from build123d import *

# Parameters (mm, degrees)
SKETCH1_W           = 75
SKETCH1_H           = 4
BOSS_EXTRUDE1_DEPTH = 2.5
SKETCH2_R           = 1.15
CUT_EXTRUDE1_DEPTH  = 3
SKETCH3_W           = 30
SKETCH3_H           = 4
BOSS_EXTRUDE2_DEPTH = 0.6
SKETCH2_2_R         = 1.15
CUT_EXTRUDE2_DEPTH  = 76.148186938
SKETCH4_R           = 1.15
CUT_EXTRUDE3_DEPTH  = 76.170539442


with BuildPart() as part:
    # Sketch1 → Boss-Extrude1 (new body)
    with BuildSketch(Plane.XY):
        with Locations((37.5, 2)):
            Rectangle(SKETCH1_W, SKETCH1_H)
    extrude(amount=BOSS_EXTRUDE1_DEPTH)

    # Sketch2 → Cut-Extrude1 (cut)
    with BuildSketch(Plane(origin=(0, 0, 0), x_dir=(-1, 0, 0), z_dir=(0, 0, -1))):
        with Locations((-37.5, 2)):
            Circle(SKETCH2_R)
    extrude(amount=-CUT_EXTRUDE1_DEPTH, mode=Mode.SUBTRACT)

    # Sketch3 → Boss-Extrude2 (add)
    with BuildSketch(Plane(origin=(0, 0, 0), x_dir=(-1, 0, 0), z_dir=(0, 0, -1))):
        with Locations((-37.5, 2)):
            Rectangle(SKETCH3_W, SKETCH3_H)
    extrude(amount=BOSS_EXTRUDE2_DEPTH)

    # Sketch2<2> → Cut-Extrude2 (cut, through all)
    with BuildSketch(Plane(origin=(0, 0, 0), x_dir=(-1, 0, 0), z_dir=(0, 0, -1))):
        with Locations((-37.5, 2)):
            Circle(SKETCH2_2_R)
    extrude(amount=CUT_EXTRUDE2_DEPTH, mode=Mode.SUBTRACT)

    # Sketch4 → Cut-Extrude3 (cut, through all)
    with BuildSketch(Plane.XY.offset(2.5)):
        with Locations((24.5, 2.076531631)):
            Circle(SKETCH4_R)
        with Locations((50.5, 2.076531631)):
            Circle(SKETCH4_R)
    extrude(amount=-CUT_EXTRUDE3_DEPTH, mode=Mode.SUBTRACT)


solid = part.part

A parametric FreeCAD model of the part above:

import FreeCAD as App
import Part
import Sketcher

V = App.Vector


def add_polygon(sketch, points):
    """Adds a closed chain of lines whose ends are joined by coincident constraints."""
    first, n = sketch.GeometryCount, len(points)
    for a, b in zip(points, points[1:] + points[:1]):
        sketch.addGeometry(Part.LineSegment(App.Vector(*a, 0), App.Vector(*b, 0)), False)
    for i in range(n):
        sketch.addConstraint(Sketcher.Constraint("Coincident", first + i, 2, first + (i + 1) % n, 1))

doc = App.newDocument("Part")
body = doc.addObject("PartDesign::Body", "Body")

# Sketch on XY plane
sketch1 = body.newObject("Sketcher::SketchObject", "Sketch")
sketch1.AttachmentSupport = (doc.getObject("XY_Plane"), [""])
sketch1.MapMode = "FlatFace"
add_polygon(sketch1, [(0, 4), (0, 0), (75, 0), (75, 4)])  # lines 0-3
sketch1.addConstraint(Sketcher.Constraint("Vertical", 0))
sketch1.addConstraint(Sketcher.Constraint("Horizontal", 1))
sketch1.addConstraint(Sketcher.Constraint("Vertical", 2))
sketch1.addConstraint(Sketcher.Constraint("Horizontal", 3))
sketch1.addConstraint(Sketcher.Constraint("Coincident", 0, 2, -1, 1))
sketch1.addConstraint(Sketcher.Constraint("DistanceX", 1, 1, 1, 2, 75.0))
sketch1.addConstraint(Sketcher.Constraint("DistanceY", 0, 2, 0, 1, 4.0))
pad1 = body.newObject("PartDesign::Pad", "Pad")
pad1.Profile = sketch1
pad1.Length = 2.5

# Sketch on XY plane
sketch2 = body.newObject("Sketcher::SketchObject", "Sketch001")
sketch2.AttachmentSupport = (doc.getObject("XY_Plane"), [""])
sketch2.MapMode = "FlatFace"
sketch2.addGeometry(Part.Circle(V(37.5, 2, 0), V(0, 0, 1), 1.1), False)
sketch2.addConstraint(Sketcher.Constraint("Diameter", 0, 2.3))
sketch2.addConstraint(Sketcher.Constraint("DistanceY", -1, 1, 0, 3, 2.0))
sketch2.addConstraint(Sketcher.Constraint("DistanceX", -1, 1, 0, 3, 37.5))
pocket1 = body.newObject("PartDesign::Pocket", "Pocket")
pocket1.Profile = sketch2
pocket1.Length = 3
pocket1.Reversed = True

# Sketch on XY plane
sketch3 = body.newObject("Sketcher::SketchObject", "Sketch002")
sketch3.AttachmentSupport = (doc.getObject("XY_Plane"), [""])
sketch3.MapMode = "FlatFace"
add_polygon(sketch3, [(52.5, 4), (52.5, 0), (22.5, 0), (22.5, 4)])  # lines 0-3
sketch3.addConstraint(Sketcher.Constraint("Vertical", 0))
sketch3.addConstraint(Sketcher.Constraint("Horizontal", 1))
sketch3.addConstraint(Sketcher.Constraint("Vertical", 2))
sketch3.addConstraint(Sketcher.Constraint("Horizontal", 3))
sketch3.addConstraint(Sketcher.Constraint("PointOnObject", 0, 2, -1))
sketch3.addConstraint(Sketcher.Constraint("DistanceX", 1, 2, 1, 1, 30.0))
sketch3.addConstraint(Sketcher.Constraint("DistanceY", 0, 2, 0, 1, 4.0))
sketch3.addConstraint(Sketcher.Constraint("DistanceX", -1, 1, 0, 2, 52.5))
pad2 = body.newObject("PartDesign::Pad", "Pad001")
pad2.Profile = sketch3
pad2.Length = 0.6
pad2.Reversed = True

# Sketch on XY plane
sketch4 = body.newObject("Sketcher::SketchObject", "Sketch003")
sketch4.AttachmentSupport = (doc.getObject("XY_Plane"), [""])
sketch4.MapMode = "FlatFace"
sketch4.addGeometry(Part.Circle(V(37.5, 2, 0), V(0, 0, 1), 1.1), False)
sketch4.addConstraint(Sketcher.Constraint("Diameter", 0, 2.3))
sketch4.addConstraint(Sketcher.Constraint("DistanceY", -1, 1, 0, 3, 2.0))
sketch4.addConstraint(Sketcher.Constraint("DistanceX", -1, 1, 0, 3, 37.5))
pocket2 = body.newObject("PartDesign::Pocket", "Pocket001")
pocket2.Profile = sketch4
pocket2.Type = "ThroughAll"

# Sketch on XY plane
sketch5 = body.newObject("Sketcher::SketchObject", "Sketch004")
sketch5.AttachmentSupport = (doc.getObject("XY_Plane"), [""])
sketch5.MapMode = "FlatFace"
sketch5.AttachmentOffset = App.Placement(V(0, 0, 2.5), App.Rotation())
sketch5.addGeometry(Part.Circle(V(24.5, 2.1, 0), V(0, 0, 1), 1.1), False)
sketch5.addGeometry(Part.Circle(V(50.5, 2.1, 0), V(0, 0, 1), 1.1), False)
sketch5.addConstraint(Sketcher.Constraint("Equal", 0, 1))
sketch5.addConstraint(Sketcher.Constraint("Horizontal", 0, 3, 1, 3))
sketch5.addConstraint(Sketcher.Constraint("Diameter", 0, 2.3))
sketch5.addConstraint(Sketcher.Constraint("DistanceX", 0, 3, 1, 3, 26.0))
sketch5.addConstraint(Sketcher.Constraint("DistanceX", -1, 1, 0, 3, 24.5))
sketch5.addConstraint(Sketcher.Constraint("DistanceY", -1, 1, 0, 3, 2.076532))
pocket3 = body.newObject("PartDesign::Pocket", "Pocket002")
pocket3.Profile = sketch5
pocket3.Type = "ThroughAll"

doc.recompute()
